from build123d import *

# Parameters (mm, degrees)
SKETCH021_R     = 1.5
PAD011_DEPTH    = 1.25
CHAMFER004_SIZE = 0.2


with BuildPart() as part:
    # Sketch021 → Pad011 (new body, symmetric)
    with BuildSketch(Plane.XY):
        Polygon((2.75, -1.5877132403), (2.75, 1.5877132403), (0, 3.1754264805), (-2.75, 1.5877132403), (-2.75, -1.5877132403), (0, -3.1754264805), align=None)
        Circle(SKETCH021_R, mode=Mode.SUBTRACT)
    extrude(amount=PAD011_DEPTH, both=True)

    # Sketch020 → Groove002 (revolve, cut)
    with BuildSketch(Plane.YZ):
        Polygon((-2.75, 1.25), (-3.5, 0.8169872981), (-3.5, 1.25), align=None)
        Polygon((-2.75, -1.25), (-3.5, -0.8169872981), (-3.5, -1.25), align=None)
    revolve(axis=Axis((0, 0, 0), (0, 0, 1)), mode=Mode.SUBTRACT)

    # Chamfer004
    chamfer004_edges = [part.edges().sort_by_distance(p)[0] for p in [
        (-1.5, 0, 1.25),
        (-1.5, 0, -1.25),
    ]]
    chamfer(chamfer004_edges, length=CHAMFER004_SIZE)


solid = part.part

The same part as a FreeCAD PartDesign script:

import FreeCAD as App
import Part
import Sketcher
Q = App.Units.Quantity


def edges_at(feature, points):
    """Names of the edges that pass closest to the given points."""
    edges = feature.Shape.Edges
    near = lambda p: min(range(len(edges)), key=lambda i: edges[i].distToShape(Part.Vertex(*p))[0])
    return sorted({f"Edge{near(p) + 1}" for p in points})

doc = App.newDocument("Part")
body = doc.addObject("PartDesign::Body", "Body")

# Sketch on XY plane
sketch1 = body.newObject("Sketcher::SketchObject", "Sketch")
sketch1.AttachmentSupport = (doc.getObject("XY_Plane"), [""])
sketch1.MapMode = "FlatFace"
sketch1.addGeometry([
    Part.LineSegment(App.Vector(2.75, -1.587713, 0), App.Vector(2.75, 1.587713, 0)),  # 0
    Part.LineSegment(App.Vector(2.75, 1.587713, 0), App.Vector(0, 3.175426, 0)),  # 1
    Part.LineSegment(App.Vector(0, 3.175426, 0), App.Vector(-2.75, 1.587713, 0)),  # 2
    Part.LineSegment(App.Vector(-2.75, 1.587713, 0), App.Vector(-2.75, -1.587713, 0)),  # 3
    Part.LineSegment(App.Vector(-2.75, -1.587713, 0), App.Vector(0, -3.175426, 0)),  # 4
    Part.LineSegment(App.Vector(0, -3.175426, 0), App.Vector(2.75, -1.587713, 0)),  # 5
    Part.Circle(App.Vector(0, 0, 0), App.Vector(0, 0, 1), 1.5),  # 6
], False)
sketch1.addConstraint([
    Sketcher.Constraint("Coincident", 0, 2, 1, 1),
    Sketcher.Constraint("Coincident", 1, 2, 2, 1),
    Sketcher.Constraint("Coincident", 2, 2, 3, 1),
    Sketcher.Constraint("Coincident", 3, 2, 4, 1),
    Sketcher.Constraint("Coincident", 4, 2, 5, 1),
    Sketcher.Constraint("Coincident", 5, 2, 0, 1),
    Sketcher.Constraint("Vertical", 0),
    Sketcher.Constraint("Vertical", 3),
    Sketcher.Constraint("Coincident", 6, 3, -1, 1),
    Sketcher.Constraint("Symmetric", 0, 2, 3, 2, -1, 1),
    Sketcher.Constraint("Symmetric", 1, 2, 4, 2, -1, 1),
    Sketcher.Constraint("PointOnObject", 1, 2, -2),
    Sketcher.Constraint("Parallel", 2, 5),
    Sketcher.Constraint("Horizontal", 0, 2, 2, 2),
    Sketcher.Constraint("Diameter", 6, Q("3 mm")),
    Sketcher.Constraint("Angle", 1, Q("150 deg")),
    Sketcher.Constraint("DistanceX", 2, 2, 0, 2, Q("5.5 mm")),
    Sketcher.Constraint("DistanceY", 0, 1, 0, 2, Q("3.175426 mm")),
])
pad1 = body.newObject("PartDesign::Pad", "Pad")
pad1.Profile = sketch1
pad1.Length = 2.5
pad1.Midplane = True

# Sketch on YZ plane
sketch2 = body.newObject("Sketcher::SketchObject", "Sketch001")
sketch2.AttachmentSupport = (doc.getObject("YZ_Plane"), [""])
sketch2.MapMode = "FlatFace"
sketch2.addGeometry([
    Part.LineSegment(App.Vector(-3.5, 0.816987, 0), App.Vector(-2.75, 1.25, 0)),  # 0
    Part.LineSegment(App.Vector(-2.75, 1.25, 0), App.Vector(-3.5, 1.25, 0)),  # 1
    Part.LineSegment(App.Vector(-3.5, 1.25, 0), App.Vector(-3.5, 0.816987, 0)),  # 2
    Part.LineSegment(App.Vector(-2.75, -1.25, 0), App.Vector(-3.5, -0.816987, 0)),  # 3
    Part.LineSegment(App.Vector(-3.5, -0.816987, 0), App.Vector(-3.5, -1.25, 0)),  # 4
    Part.LineSegment(App.Vector(-3.5, -1.25, 0), App.Vector(-2.75, -1.25, 0)),  # 5
], False)
sketch2.addConstraint([
    Sketcher.Constraint("Coincident", 0, 2, 1, 1),
    Sketcher.Constraint("Coincident", 1, 2, 2, 1),
    Sketcher.Constraint("Coincident", 2, 2, 0, 1),
    Sketcher.Constraint("Coincident", 3, 2, 4, 1),
    Sketcher.Constraint("Coincident", 4, 2, 5, 1),
    Sketcher.Constraint("Coincident", 5, 2, 3, 1),
    Sketcher.Constraint("Horizontal", 1),
    Sketcher.Constraint("Vertical", 2),
    Sketcher.Constraint("Vertical", 4),
    Sketcher.Constraint("Horizontal", 5),
    Sketcher.Constraint("Symmetric", 2, 2, 3, 2, -1),
    Sketcher.Constraint("Symmetric", 0, 2, 5, 2, -1),
    Sketcher.Constraint("Angle", 0, Q("30 deg")),
    Sketcher.Constraint("DistanceX", 1, 2, 1, 1, Q("0.75 mm")),
    Sketcher.Constraint("DistanceX", 1, 2, -1, 1, Q("3.5 mm")),
    Sketcher.Constraint("DistanceY", 4, 2, 1, 2, Q("2.5 mm")),
])
groove = body.newObject("PartDesign::Groove", "Groove")
groove.Profile = sketch2
groove.ReferenceAxis = (sketch2, ["V_Axis"])
groove.Angle = 360
doc.recompute()

chamfer = body.newObject("PartDesign::Chamfer", "Chamfer")
chamfer.Base = (groove, edges_at(groove, [(-1.5, 0, 1.25), (-1.5, 0, -1.25)]))
chamfer.Size = 0.2

doc.recompute()
